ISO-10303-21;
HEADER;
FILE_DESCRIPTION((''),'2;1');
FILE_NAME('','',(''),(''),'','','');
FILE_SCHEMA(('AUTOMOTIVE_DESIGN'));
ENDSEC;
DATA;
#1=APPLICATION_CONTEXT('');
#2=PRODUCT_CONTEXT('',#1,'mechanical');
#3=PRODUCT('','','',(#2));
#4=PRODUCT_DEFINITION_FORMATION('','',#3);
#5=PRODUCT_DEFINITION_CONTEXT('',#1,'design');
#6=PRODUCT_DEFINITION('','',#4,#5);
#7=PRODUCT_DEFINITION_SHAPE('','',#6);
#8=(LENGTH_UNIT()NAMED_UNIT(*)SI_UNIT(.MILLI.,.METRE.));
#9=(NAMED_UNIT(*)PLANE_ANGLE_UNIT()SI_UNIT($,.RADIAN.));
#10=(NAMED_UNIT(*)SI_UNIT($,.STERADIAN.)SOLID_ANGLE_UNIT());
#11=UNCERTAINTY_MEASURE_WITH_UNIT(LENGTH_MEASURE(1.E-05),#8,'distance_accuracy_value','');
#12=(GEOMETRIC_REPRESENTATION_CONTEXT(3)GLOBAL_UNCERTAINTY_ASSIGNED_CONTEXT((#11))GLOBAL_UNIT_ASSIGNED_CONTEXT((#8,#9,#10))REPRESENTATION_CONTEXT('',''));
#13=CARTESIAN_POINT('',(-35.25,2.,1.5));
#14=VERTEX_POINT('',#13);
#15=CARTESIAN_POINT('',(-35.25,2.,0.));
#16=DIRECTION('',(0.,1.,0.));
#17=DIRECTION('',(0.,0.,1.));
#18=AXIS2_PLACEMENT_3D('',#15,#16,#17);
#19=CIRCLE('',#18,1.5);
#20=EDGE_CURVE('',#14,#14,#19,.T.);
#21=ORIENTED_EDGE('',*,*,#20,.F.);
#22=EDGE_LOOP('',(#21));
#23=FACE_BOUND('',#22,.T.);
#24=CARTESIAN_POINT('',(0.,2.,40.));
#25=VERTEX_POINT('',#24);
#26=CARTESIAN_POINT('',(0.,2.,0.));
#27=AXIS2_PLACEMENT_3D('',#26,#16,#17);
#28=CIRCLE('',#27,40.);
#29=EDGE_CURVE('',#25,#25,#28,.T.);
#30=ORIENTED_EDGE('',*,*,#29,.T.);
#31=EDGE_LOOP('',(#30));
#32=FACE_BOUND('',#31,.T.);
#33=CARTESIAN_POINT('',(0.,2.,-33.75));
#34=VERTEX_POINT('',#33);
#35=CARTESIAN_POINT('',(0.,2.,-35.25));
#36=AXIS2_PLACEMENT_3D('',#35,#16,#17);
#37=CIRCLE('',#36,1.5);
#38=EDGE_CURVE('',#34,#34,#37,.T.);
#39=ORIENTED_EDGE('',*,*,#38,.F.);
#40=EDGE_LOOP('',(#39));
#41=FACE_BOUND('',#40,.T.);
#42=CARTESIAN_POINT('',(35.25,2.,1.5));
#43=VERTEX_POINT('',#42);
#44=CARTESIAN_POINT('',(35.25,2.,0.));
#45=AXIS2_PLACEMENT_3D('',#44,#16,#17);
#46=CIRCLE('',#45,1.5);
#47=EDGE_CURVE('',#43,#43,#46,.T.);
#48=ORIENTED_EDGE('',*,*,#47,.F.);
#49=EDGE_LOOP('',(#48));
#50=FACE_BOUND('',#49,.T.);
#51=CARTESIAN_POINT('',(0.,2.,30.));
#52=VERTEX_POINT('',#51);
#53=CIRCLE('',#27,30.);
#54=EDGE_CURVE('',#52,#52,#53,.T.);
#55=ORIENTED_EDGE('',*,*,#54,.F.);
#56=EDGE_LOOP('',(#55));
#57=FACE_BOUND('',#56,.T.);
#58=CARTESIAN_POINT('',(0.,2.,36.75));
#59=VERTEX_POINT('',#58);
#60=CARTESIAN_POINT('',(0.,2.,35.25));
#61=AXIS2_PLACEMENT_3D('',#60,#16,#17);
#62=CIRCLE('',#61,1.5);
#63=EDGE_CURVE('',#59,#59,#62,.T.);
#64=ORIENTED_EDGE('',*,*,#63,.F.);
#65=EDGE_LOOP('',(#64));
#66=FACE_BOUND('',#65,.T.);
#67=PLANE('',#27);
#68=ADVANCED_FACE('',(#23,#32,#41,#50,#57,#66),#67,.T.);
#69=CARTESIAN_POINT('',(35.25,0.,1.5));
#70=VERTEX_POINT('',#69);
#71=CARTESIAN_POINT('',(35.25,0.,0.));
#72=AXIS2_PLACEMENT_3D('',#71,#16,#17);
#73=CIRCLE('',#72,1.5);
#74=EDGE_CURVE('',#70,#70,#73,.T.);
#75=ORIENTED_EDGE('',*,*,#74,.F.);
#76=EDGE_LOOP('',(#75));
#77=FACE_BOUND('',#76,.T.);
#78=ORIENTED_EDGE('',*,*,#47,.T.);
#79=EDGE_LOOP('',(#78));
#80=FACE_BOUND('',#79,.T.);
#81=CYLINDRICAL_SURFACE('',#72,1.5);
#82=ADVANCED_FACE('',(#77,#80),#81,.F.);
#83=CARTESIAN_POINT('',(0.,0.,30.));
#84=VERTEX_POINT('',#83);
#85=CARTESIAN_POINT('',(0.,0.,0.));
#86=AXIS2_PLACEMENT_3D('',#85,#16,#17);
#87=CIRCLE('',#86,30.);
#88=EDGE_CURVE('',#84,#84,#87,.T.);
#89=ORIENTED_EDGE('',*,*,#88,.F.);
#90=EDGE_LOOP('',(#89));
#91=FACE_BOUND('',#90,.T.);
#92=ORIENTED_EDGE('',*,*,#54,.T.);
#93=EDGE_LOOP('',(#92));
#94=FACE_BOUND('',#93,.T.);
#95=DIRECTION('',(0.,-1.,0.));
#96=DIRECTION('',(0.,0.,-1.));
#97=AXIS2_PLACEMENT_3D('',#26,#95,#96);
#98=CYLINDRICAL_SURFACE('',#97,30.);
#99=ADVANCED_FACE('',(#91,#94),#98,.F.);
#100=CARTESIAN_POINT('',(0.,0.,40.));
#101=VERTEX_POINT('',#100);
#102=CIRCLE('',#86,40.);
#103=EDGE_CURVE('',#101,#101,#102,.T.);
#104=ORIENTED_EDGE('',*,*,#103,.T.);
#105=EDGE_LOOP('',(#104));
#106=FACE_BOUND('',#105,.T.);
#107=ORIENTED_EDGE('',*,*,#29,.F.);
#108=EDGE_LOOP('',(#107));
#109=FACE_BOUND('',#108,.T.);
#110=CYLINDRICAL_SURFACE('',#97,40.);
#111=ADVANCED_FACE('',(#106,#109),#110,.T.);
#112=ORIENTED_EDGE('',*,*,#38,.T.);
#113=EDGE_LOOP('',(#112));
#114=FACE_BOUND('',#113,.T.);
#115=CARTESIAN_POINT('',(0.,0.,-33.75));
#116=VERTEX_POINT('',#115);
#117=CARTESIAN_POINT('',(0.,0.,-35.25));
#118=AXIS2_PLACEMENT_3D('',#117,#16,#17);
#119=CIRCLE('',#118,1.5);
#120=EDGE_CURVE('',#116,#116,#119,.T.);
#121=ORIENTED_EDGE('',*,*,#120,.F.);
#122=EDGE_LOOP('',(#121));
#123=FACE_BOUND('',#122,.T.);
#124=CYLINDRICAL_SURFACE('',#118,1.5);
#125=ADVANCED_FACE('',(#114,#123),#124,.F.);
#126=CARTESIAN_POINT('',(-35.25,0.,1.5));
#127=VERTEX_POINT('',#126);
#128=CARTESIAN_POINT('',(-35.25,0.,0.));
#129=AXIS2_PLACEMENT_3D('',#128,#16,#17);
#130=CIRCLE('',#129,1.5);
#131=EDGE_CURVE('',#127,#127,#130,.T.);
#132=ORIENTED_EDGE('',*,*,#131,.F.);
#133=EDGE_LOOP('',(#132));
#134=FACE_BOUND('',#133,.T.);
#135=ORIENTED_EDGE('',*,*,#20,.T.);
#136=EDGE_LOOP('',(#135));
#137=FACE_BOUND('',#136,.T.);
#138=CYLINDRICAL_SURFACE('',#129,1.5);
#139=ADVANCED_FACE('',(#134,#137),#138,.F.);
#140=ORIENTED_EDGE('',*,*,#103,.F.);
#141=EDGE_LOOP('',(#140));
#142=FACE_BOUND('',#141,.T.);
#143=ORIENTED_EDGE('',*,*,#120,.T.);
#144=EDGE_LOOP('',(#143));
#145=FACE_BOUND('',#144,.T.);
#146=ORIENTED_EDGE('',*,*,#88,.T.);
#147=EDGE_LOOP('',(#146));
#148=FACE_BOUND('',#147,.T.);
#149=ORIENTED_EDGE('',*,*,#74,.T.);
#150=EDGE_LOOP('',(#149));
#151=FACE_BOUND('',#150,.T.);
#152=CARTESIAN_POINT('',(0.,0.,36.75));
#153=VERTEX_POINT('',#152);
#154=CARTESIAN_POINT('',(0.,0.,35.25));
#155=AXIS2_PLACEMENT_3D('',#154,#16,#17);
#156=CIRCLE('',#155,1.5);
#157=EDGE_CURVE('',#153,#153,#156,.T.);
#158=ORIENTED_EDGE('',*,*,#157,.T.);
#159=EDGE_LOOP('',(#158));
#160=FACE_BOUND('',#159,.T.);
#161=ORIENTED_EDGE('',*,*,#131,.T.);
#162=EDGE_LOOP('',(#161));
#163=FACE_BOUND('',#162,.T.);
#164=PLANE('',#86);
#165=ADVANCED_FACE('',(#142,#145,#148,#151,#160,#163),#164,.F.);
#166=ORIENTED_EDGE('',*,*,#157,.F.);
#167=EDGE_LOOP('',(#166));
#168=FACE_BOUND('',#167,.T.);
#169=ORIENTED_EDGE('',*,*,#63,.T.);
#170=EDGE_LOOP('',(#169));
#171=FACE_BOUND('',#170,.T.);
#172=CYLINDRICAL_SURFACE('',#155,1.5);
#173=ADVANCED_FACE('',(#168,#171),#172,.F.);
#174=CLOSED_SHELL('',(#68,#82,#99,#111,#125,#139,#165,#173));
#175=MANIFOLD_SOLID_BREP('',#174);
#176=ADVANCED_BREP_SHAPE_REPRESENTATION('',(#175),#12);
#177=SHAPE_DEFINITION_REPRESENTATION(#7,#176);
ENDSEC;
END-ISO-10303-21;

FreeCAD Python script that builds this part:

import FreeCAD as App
import Part
import Sketcher

V = App.Vector

doc = App.newDocument("Part")
body = doc.addObject("PartDesign::Body", "Body")

# Sketch on XZ plane
sketch1 = body.newObject("Sketcher::SketchObject", "Sketch")
sketch1.AttachmentSupport = (doc.getObject("XZ_Plane"), [""])
sketch1.MapMode = "FlatFace"
sketch1.addGeometry([
    Part.Circle(V(0, 0, 0), V(0, 0, 1), 40),
    Part.Circle(V(0, 0, 0), V(0, 0, 1), 30),
], False)
sketch1.addConstraint([
    Sketcher.Constraint("Coincident", 0, 3, -1, 1),
    Sketcher.Constraint("Coincident", 1, 3, -1, 1),
    Sketcher.Constraint("Diameter", 0, 80.0),
    Sketcher.Constraint("Diameter", 1, 60.0),
])
pad1 = body.newObject("PartDesign::Pad", "Pad")
pad1.Profile = sketch1
pad1.Length = 2
pad1.Reversed = True

# Sketch on XZ plane
sketch2 = body.newObject("Sketcher::SketchObject", "Sketch001")
sketch2.AttachmentSupport = (doc.getObject("XZ_Plane"), [""])
sketch2.MapMode = "FlatFace"
sketch2.AttachmentOffset = App.Placement(V(0, 0, -2), App.Rotation())
sketch2.addGeometry([
    Part.Circle(V(-35.2, 0, 0), V(0, 0, 1), 1.5),
    Part.Circle(V(0, -35.2, 0), V(0, 0, 1), 1.5),
    Part.Circle(V(35.2, 0, 0), V(0, 0, 1), 1.5),
    Part.Circle(V(0, 35.2, 0), V(0, 0, 1), 1.5),
], False)
sketch2.addConstraint([
    Sketcher.Constraint("Equal", 0, 1),
    Sketcher.Constraint("Equal", 1, 2),
    Sketcher.Constraint("Equal", 2, 3),
    Sketcher.Constraint("Symmetric", 0, 3, 2, 3, -1, 1),
    Sketcher.Constraint("Symmetric", 1, 3, 3, 3, -1, 1),
    Sketcher.Constraint("PointOnObject", 0, 3, -1),
    Sketcher.Constraint("PointOnObject", 1, 3, -2),
    Sketcher.Constraint("Diameter", 0, 3.0),
    Sketcher.Constraint("DistanceX", 0, 3, 2, 3, 70.5),
    Sketcher.Constraint("DistanceY", 1, 3, 3, 3, 70.5),
])
pocket1 = body.newObject("PartDesign::Pocket", "Pocket")
pocket1.Profile = sketch2
pocket1.Length = 2
pocket1.Reversed = True

doc.recompute()
